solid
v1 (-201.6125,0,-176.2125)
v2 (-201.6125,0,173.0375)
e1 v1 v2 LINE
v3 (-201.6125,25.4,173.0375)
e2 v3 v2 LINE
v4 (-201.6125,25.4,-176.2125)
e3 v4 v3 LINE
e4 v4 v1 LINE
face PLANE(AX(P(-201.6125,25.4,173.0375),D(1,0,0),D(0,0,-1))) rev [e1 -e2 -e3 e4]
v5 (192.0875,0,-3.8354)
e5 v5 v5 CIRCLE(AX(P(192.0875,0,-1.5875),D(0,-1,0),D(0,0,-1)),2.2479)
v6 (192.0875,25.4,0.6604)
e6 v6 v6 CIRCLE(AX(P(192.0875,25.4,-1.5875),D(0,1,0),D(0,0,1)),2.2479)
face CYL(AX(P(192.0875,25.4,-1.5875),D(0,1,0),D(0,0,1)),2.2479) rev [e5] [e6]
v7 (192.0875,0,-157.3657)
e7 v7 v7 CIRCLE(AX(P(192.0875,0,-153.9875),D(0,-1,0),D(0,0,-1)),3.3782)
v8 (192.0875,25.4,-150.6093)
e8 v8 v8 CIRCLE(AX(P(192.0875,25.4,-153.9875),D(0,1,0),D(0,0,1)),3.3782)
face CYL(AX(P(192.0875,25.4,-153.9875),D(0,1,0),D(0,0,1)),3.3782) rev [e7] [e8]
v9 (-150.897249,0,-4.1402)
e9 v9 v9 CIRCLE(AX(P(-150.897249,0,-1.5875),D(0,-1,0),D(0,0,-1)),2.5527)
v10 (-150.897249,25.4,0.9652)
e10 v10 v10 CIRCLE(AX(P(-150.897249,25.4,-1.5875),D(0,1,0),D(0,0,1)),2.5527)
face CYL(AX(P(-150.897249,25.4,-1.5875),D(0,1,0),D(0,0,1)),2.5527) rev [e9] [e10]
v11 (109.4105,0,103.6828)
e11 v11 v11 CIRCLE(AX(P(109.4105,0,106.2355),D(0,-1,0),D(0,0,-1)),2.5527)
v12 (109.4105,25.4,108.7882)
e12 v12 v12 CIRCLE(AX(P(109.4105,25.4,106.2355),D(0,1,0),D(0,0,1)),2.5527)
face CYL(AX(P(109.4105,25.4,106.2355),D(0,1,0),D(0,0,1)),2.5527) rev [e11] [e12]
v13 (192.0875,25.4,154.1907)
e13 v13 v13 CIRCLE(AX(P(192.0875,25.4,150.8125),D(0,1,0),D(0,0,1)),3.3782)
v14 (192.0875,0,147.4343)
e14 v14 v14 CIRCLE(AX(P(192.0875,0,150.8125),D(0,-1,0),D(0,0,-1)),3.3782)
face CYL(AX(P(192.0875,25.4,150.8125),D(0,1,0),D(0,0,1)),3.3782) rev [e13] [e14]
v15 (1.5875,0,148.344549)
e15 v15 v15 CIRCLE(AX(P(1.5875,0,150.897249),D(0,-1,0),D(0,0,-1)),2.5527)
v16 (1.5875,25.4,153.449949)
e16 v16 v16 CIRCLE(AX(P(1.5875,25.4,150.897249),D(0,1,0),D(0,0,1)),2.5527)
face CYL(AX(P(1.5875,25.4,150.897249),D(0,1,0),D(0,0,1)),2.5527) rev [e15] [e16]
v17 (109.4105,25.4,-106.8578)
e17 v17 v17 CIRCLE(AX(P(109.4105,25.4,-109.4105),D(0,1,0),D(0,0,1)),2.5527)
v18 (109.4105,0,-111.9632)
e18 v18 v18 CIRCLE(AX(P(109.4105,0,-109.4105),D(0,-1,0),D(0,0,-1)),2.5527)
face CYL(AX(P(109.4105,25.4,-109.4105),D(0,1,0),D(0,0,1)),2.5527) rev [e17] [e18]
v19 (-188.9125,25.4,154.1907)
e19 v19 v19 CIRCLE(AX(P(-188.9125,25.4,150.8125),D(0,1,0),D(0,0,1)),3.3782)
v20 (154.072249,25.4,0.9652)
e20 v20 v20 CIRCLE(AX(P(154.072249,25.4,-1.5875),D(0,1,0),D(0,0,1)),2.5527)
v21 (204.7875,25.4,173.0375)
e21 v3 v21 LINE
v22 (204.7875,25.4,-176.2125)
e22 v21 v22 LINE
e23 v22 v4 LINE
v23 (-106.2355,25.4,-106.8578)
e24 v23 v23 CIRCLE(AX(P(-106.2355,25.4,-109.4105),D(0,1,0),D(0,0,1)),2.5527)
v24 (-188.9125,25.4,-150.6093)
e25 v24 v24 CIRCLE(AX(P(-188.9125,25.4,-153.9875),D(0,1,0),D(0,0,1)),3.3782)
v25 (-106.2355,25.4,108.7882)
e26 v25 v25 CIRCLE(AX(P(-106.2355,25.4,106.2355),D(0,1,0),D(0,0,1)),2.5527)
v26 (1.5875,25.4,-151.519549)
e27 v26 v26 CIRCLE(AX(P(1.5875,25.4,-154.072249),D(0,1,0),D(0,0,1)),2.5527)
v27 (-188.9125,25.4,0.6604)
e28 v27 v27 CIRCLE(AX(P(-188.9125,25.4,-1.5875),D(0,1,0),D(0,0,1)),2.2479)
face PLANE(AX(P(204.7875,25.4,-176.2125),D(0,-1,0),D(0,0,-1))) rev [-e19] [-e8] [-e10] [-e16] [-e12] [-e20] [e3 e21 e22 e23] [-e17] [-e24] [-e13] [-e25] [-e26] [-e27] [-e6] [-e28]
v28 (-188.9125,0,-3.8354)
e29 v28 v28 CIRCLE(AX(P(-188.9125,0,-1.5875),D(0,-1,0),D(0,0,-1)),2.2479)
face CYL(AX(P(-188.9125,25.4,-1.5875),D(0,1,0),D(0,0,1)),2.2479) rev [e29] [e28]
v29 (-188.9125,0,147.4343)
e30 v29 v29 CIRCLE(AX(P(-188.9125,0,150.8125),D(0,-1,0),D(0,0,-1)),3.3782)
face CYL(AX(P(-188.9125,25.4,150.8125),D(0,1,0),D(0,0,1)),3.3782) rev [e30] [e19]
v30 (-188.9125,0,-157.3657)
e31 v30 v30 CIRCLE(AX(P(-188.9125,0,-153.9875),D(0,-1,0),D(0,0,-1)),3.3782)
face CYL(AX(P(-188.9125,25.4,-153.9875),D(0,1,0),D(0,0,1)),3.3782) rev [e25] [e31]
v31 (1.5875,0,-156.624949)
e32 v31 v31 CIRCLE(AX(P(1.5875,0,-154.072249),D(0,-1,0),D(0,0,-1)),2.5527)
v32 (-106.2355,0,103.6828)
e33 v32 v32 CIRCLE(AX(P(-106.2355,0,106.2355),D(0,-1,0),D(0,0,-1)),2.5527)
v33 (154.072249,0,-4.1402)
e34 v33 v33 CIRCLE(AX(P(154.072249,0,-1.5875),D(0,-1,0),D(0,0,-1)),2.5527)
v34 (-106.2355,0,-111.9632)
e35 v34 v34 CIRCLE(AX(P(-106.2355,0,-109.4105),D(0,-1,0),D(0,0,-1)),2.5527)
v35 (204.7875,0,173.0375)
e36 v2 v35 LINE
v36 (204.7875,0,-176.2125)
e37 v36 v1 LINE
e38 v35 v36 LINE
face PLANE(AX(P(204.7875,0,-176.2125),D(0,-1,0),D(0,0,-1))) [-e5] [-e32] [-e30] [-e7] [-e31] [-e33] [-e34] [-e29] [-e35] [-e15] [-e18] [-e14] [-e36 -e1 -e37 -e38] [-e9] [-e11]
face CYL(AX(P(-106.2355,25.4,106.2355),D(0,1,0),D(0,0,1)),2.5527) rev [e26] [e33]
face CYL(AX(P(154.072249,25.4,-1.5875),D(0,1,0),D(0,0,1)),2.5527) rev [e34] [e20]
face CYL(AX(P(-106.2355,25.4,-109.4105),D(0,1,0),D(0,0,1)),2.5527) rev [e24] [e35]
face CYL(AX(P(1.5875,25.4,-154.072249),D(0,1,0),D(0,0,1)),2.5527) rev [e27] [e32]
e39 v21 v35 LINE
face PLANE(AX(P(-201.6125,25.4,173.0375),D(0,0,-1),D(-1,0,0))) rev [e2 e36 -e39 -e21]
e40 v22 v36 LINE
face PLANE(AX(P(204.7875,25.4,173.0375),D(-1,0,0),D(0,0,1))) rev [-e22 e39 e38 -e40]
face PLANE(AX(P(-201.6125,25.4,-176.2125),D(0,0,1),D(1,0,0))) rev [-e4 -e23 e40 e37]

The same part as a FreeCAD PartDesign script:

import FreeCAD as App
import Part
import Sketcher
Q = App.Units.Quantity

doc = App.newDocument("Part")
body = doc.addObject("PartDesign::Body", "Body")

# Sketch on XZ plane
sketch1 = body.newObject("Sketcher::SketchObject", "Sketch")
sketch1.AttachmentSupport = (doc.getObject("XZ_Plane"), [""])
sketch1.MapMode = "FlatFace"
sketch1.addGeometry([
    Part.LineSegment(App.Vector(-201.6125, -176.2125, 0), App.Vector(-201.6125, 173.0375, 0)),
    Part.LineSegment(App.Vector(-201.6125, 173.0375, 0), App.Vector(204.7875, 173.0375, 0)),
    Part.LineSegment(App.Vector(204.7875, 173.0375, 0), App.Vector(204.7875, -176.2125, 0)),
    Part.LineSegment(App.Vector(204.7875, -176.2125, 0), App.Vector(-201.6125, -176.2125, 0)),
], False)
sketch1.addConstraint([
    Sketcher.Constraint("Coincident", 0, 2, 1, 1),
    Sketcher.Constraint("Coincident", 1, 2, 2, 1),
    Sketcher.Constraint("Coincident", 2, 2, 3, 1),
    Sketcher.Constraint("Coincident", 3, 2, 0, 1),
    Sketcher.Constraint("Vertical", 0),
    Sketcher.Constraint("Horizontal", 1),
    Sketcher.Constraint("Vertical", 2),
    Sketcher.Constraint("Horizontal", 3),
    Sketcher.Constraint("DistanceX", 1, 1, 1, 2, Q("16 in")),
    Sketcher.Constraint("DistanceY", 0, 1, 0, 2, Q("13.75 in")),
    Sketcher.Constraint("DistanceX", 0, 2, -1, 1, Q("7.9375 in")),
    Sketcher.Constraint("DistanceY", -1, 1, 0, 2, Q("6.8125 in")),
])
pad1 = body.newObject("PartDesign::Pad", "Pad")
pad1.Profile = sketch1
pad1.Length = Q("1 in")
pad1.Reversed = True

# Sketch on XZ plane
sketch2 = body.newObject("Sketcher::SketchObject", "Sketch001")
sketch2.AttachmentSupport = (doc.getObject("XZ_Plane"), [""])
sketch2.MapMode = "FlatFace"
sketch2.AttachmentOffset = App.Placement(App.Vector(0, 0, -1 * 25.4), App.Rotation())
sketch2.addGeometry([
    Part.Circle(App.Vector(-188.9125, -153.9875, 0), App.Vector(0, 0, 1), 3.3782),
    Part.Circle(App.Vector(192.0875, -153.9875, 0), App.Vector(0, 0, 1), 3.3782),
    Part.Circle(App.Vector(192.0875, 150.8125, 0), App.Vector(0, 0, 1), 3.3782),
    Part.Circle(App.Vector(-188.9125, 150.8125, 0), App.Vector(0, 0, 1), 3.3782),
], False)
sketch2.addConstraint([
    Sketcher.Constraint("Equal", 0, 1),
    Sketcher.Constraint("Equal", 1, 2),
    Sketcher.Constraint("Equal", 2, 3),
    Sketcher.Constraint("Horizontal", 0, 3, 1, 3),
    Sketcher.Constraint("Horizontal", 2, 3, 3, 3),
    Sketcher.Constraint("Vertical", 1, 3, 2, 3),
    Sketcher.Constraint("Vertical", 0, 3, 3, 3),
    Sketcher.Constraint("Diameter", 0, Q("0.266 in")),
    Sketcher.Constraint("DistanceX", 0, 3, 1, 3, Q("15 in")),
    Sketcher.Constraint("DistanceY", 1, 3, 2, 3, Q("12 in")),
    Sketcher.Constraint("DistanceX", 0, 3, -1, 1, Q("7.4375 in")),
    Sketcher.Constraint("DistanceY", 0, 3, -1, 1, Q("6.0625 in")),
])
doc.recompute()
hole = body.newObject("PartDesign::Hole", "Hole")
hole.Profile = sketch2
hole.ThreadType = "None"
hole.Diameter = Q("0.266 in")
hole.DepthType = "Dimension"
hole.Depth = 70
hole.DrillPoint = "Angled"
hole.DrillPointAngle = 118
hole.Reversed = True

# Sketch on XZ plane
sketch3 = body.newObject("Sketcher::SketchObject", "Sketch002")
sketch3.AttachmentSupport = (doc.getObject("XZ_Plane"), [""])
sketch3.MapMode = "FlatFace"
sketch3.AttachmentOffset = App.Placement(App.Vector(0, 0, -1 * 25.4), App.Rotation())
sketch3.addGeometry([
    Part.Circle(App.Vector(-188.9125, -1.5875, 0), App.Vector(0, 0, 1), 2.2479),
    Part.Circle(App.Vector(192.0875, -1.5875, 0), App.Vector(0, 0, 1), 2.2479),
], False)
sketch3.addConstraint([
    Sketcher.Constraint("Equal", 0, 1),
    Sketcher.Constraint("Horizontal", 0, 3, 1, 3),
    Sketcher.Constraint("Diameter", 0, Q("0.177 in")),
    Sketcher.Constraint("DistanceX", 0, 3, 1, 3, Q("15 in")),
    Sketcher.Constraint("DistanceX", 0, 3, -1, 1, Q("7.4375 in")),
    Sketcher.Constraint("DistanceY", 0, 3, -1, 1, Q("0.0625 in")),
])
doc.recompute()
hole2 = body.newObject("PartDesign::Hole", "Hole001")
hole2.Profile = sketch3
hole2.ThreadType = "None"
hole2.Diameter = Q("0.177 in")
hole2.DepthType = "Dimension"
hole2.Depth = 70
hole2.DrillPoint = "Angled"
hole2.DrillPointAngle = 118
hole2.Reversed = True

# Sketch on XZ plane
sketch4 = body.newObject("Sketcher::SketchObject", "Sketch003")
sketch4.AttachmentSupport = (doc.getObject("XZ_Plane"), [""])
sketch4.MapMode = "FlatFace"
sketch4.AttachmentOffset = App.Placement(App.Vector(0, 0, -1 * 25.4), App.Rotation())
sketch4.addGeometry([
    Part.Circle(App.Vector(1.5875, -154.072249, 0), App.Vector(0, 0, 1), 2.5527),  # 0
    Part.Circle(App.Vector(-106.2355, -109.4105, 0), App.Vector(0, 0, 1), 2.5527),  # 1
    Part.Circle(App.Vector(109.4105, -109.4105, 0), App.Vector(0, 0, 1), 2.5527),  # 2
    Part.Circle(App.Vector(154.072249, -1.5875, 0), App.Vector(0, 0, 1), 2.5527),  # 3
    Part.Circle(App.Vector(-150.897249, -1.5875, 0), App.Vector(0, 0, 1), 2.5527),  # 4
    Part.Circle(App.Vector(-106.2355, 106.2355, 0), App.Vector(0, 0, 1), 2.5527),  # 5
    Part.Circle(App.Vector(1.5875, 150.897249, 0), App.Vector(0, 0, 1), 2.5527),  # 6
    Part.Circle(App.Vector(109.4105, 106.2355, 0), App.Vector(0, 0, 1), 2.5527),  # 7
], False)
sketch4.addConstraint([
    Sketcher.Constraint("Equal", 0, 1),
    Sketcher.Constraint("Equal", 1, 2),
    Sketcher.Constraint("Equal", 2, 3),
    Sketcher.Constraint("Equal", 3, 4),
    Sketcher.Constraint("Equal", 4, 5),
    Sketcher.Constraint("Equal", 5, 6),
    Sketcher.Constraint("Equal", 6, 7),
    Sketcher.Constraint("Horizontal", 1, 3, 2, 3),
    Sketcher.Constraint("Horizontal", 3, 3, 4, 3),
    Sketcher.Constraint("Horizontal", 5, 3, 7, 3),
    Sketcher.Constraint("Vertical", 1, 3, 5, 3),
    Sketcher.Constraint("Vertical", 0, 3, 6, 3),
    Sketcher.Constraint("Vertical", 2, 3, 7, 3),
    Sketcher.Constraint("Diameter", 0, Q("0.201 in")),
    Sketcher.Constraint("DistanceX", 1, 3, 2, 3, Q("8.49 in")),
    Sketcher.Constraint("DistanceY", 1, 3, 5, 3, Q("8.49 in")),
    Sketcher.Constraint("DistanceX", -1, 1, 0, 3, Q("0.0625 in")),
    Sketcher.Constraint("DistanceY", 3, 3, -1, 1, Q("0.0625 in")),
    Sketcher.Constraint("DistanceX", 1, 3, 0, 3, Q("4.245 in")),
    Sketcher.Constraint("DistanceY", 2, 3, 3, 3, Q("4.245 in")),
    Sketcher.Constraint("DistanceY", 0, 3, -1, 1, Q("154.072249 mm")),
    Sketcher.Constraint("DistanceX", -1, 1, 3, 3, Q("154.072249 mm")),
    Sketcher.Constraint("DistanceX", 4, 3, -1, 1, Q("150.897249 mm")),
    Sketcher.Constraint("DistanceY", -1, 1, 6, 3, Q("150.897249 mm")),
])
doc.recompute()
hole3 = body.newObject("PartDesign::Hole", "Hole002")
hole3.Profile = sketch4
hole3.ThreadType = "None"
hole3.Diameter = Q("0.201 in")
hole3.DepthType = "Dimension"
hole3.Depth = 39.05
hole3.DrillPoint = "Angled"
hole3.DrillPointAngle = 118
hole3.Reversed = True

doc.recompute()
